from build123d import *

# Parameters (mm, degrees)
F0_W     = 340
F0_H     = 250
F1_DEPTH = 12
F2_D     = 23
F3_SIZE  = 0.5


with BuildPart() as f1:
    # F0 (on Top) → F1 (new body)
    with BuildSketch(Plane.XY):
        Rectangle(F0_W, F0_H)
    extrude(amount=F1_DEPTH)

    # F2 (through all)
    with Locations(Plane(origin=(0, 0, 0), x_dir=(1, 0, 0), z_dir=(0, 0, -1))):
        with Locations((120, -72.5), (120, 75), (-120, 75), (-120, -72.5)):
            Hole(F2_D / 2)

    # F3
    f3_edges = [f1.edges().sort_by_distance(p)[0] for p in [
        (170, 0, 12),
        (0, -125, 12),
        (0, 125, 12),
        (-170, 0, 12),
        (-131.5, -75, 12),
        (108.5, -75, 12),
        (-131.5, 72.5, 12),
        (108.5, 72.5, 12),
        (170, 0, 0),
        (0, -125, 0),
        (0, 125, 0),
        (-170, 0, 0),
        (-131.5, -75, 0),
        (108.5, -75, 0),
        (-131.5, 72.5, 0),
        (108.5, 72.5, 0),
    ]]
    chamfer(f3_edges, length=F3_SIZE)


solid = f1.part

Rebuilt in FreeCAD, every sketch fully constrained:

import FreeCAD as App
import Part
import Sketcher
from FreeCAD import Vector


def edges_at(feature, points):
    """Names of the edges that pass closest to the given points."""
    edges = feature.Shape.Edges
    near = lambda p: min(range(len(edges)), key=lambda i: edges[i].distToShape(Part.Vertex(*p))[0])
    return sorted({f"Edge{near(p) + 1}" for p in points})


def add_polygon(sketch, points):
    """Adds a closed chain of lines whose ends are joined by coincident constraints."""
    first, n = sketch.GeometryCount, len(points)
    for a, b in zip(points, points[1:] + points[:1]):
        sketch.addGeometry(Part.LineSegment(App.Vector(*a, 0), App.Vector(*b, 0)), False)
    for i in range(n):
        sketch.addConstraint(Sketcher.Constraint("Coincident", first + i, 2, first + (i + 1) % n, 1))

doc = App.newDocument("Part")
body = doc.addObject("PartDesign::Body", "Body")

# Sketch on XY plane
sketch1 = body.newObject("Sketcher::SketchObject", "Sketch")
sketch1.AttachmentSupport = (doc.getObject("XY_Plane"), [""])
sketch1.MapMode = "FlatFace"
add_polygon(sketch1, [(-170, 125), (-170, -125), (170, -125), (170, 125)])  # lines 0-3
sketch1.addConstraint([
    Sketcher.Constraint("Vertical", 0),
    Sketcher.Constraint("Horizontal", 1),
    Sketcher.Constraint("Vertical", 2),
    Sketcher.Constraint("Horizontal", 3),
    Sketcher.Constraint("Symmetric", 0, 2, 2, 2, -1, 1),
    Sketcher.Constraint("DistanceX", 1, 1, 1, 2, 340.0),
    Sketcher.Constraint("DistanceY", 0, 2, 0, 1, 250.0),
])
pad1 = body.newObject("PartDesign::Pad", "Pad")
pad1.Profile = sketch1
pad1.Length = 12

# Sketch on XY plane
sketch2 = body.newObject("Sketcher::SketchObject", "Sketch001")
sketch2.AttachmentSupport = (doc.getObject("XY_Plane"), [""])
sketch2.MapMode = "FlatFace"
sketch2.addGeometry([
    Part.Circle(Vector(120, 72.5, 0), Vector(0, 0, 1), 11.5),
    Part.Circle(Vector(120, -75, 0), Vector(0, 0, 1), 11.5),
    Part.Circle(Vector(-120, -75, 0), Vector(0, 0, 1), 11.5),
    Part.Circle(Vector(-120, 72.5, 0), Vector(0, 0, 1), 11.5),
], False)
sketch2.addConstraint([
    Sketcher.Constraint("Equal", 0, 1),
    Sketcher.Constraint("Equal", 1, 2),
    Sketcher.Constraint("Equal", 2, 3),
    Sketcher.Constraint("Symmetric", 1, 3, 2, 3, -2),
    Sketcher.Constraint("Symmetric", 0, 3, 3, 3, -2),
    Sketcher.Constraint("Vertical", 0, 3, 1, 3),
    Sketcher.Constraint("Diameter", 0, 23.0),
    Sketcher.Constraint("DistanceX", -1, 1, 0, 3, 120.0),
    Sketcher.Constraint("DistanceY", 1, 3, -1, 1, 75.0),
    Sketcher.Constraint("DistanceY", -1, 1, 0, 3, 72.5),
])
doc.recompute()
hole = body.newObject("PartDesign::Hole", "Hole")
hole.Profile = sketch2
hole.ThreadType = "None"
hole.Diameter = 23
hole.DepthType = "ThroughAll"
hole.Reversed = True
doc.recompute()

chamfer = body.newObject("PartDesign::Chamfer", "Chamfer")
chamfer.Base = (hole, edges_at(hole, [
    (170, 0, 12),
    (0, -125, 12),
    (0, 125, 12),
    (-170, 0, 12),
    (-108.5, -75, 12),
    (131.5, -75, 12),
    (-108.5, 72.5, 12),
    (131.5, 72.5, 12),
    (170, 0, 0),
    (0, -125, 0),
    (0, 125, 0),
    (-170, 0, 0),
    (-108.5, -75, 0),
    (131.5, -75, 0),
    (-108.5, 72.5, 0),
    (131.5, 72.5, 0),
]))
chamfer.Size = 0.5

doc.recompute()
